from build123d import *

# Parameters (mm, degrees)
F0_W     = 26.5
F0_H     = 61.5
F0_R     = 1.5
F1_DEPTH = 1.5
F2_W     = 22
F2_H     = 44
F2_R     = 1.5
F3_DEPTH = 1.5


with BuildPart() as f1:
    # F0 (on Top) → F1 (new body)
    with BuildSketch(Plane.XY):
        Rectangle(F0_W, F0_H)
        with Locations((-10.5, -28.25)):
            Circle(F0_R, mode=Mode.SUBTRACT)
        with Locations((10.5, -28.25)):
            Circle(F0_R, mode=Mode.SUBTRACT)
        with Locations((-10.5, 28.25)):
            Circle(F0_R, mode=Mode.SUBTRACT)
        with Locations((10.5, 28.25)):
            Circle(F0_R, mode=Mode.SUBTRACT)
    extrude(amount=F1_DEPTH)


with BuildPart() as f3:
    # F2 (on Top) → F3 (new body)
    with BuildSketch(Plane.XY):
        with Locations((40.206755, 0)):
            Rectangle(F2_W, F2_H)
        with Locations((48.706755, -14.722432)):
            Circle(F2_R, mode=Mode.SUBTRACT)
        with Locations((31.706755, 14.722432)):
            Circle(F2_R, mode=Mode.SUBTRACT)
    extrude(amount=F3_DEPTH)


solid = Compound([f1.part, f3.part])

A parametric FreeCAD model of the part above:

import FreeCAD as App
import Part
import Sketcher
Q = App.Units.Quantity

doc = App.newDocument("Part")
body = doc.addObject("PartDesign::Body", "Body")

# Sketch on XY plane
sketch1 = body.newObject("Sketcher::SketchObject", "Sketch")
sketch1.AttachmentSupport = (doc.getObject("XY_Plane"), [""])
sketch1.MapMode = "FlatFace"
sketch1.addGeometry([
    Part.LineSegment(App.Vector(-13.25, 30.75, 0), App.Vector(-13.25, -30.75, 0)),  # 0
    Part.LineSegment(App.Vector(-13.25, -30.75, 0), App.Vector(13.25, -30.75, 0)),  # 1
    Part.LineSegment(App.Vector(13.25, -30.75, 0), App.Vector(13.25, 30.75, 0)),  # 2
    Part.LineSegment(App.Vector(13.25, 30.75, 0), App.Vector(-13.25, 30.75, 0)),  # 3
    Part.Circle(App.Vector(-10.5, -28.25, 0), App.Vector(0, 0, 1), 1.5),  # 4
    Part.Circle(App.Vector(10.5, -28.25, 0), App.Vector(0, 0, 1), 1.5),  # 5
    Part.Circle(App.Vector(-10.5, 28.25, 0), App.Vector(0, 0, 1), 1.5),  # 6
    Part.Circle(App.Vector(10.5, 28.25, 0), App.Vector(0, 0, 1), 1.5),  # 7
], False)
sketch1.addConstraint([
    Sketcher.Constraint("Coincident", 0, 2, 1, 1),
    Sketcher.Constraint("Coincident", 1, 2, 2, 1),
    Sketcher.Constraint("Coincident", 2, 2, 3, 1),
    Sketcher.Constraint("Coincident", 3, 2, 0, 1),
    Sketcher.Constraint("Vertical", 0),
    Sketcher.Constraint("Horizontal", 1),
    Sketcher.Constraint("Vertical", 2),
    Sketcher.Constraint("Horizontal", 3),
    Sketcher.Constraint("Equal", 4, 5),
    Sketcher.Constraint("Equal", 5, 6),
    Sketcher.Constraint("Equal", 6, 7),
    Sketcher.Constraint("Symmetric", 5, 3, 6, 3, -1, 1),
    Sketcher.Constraint("Symmetric", 4, 3, 7, 3, -1, 1),
    Sketcher.Constraint("Symmetric", 0, 2, 2, 2, -1, 1),
    Sketcher.Constraint("Symmetric", 4, 3, 5, 3, -2),
    Sketcher.Constraint("Diameter", 4, Q("3 mm")),
    Sketcher.Constraint("DistanceX", 1, 1, 1, 2, Q("26.5 mm")),
    Sketcher.Constraint("DistanceY", 0, 2, 0, 1, Q("61.5 mm")),
    Sketcher.Constraint("DistanceX", 4, 3, 5, 3, Q("21 mm")),
    Sketcher.Constraint("DistanceY", 0, 2, 6, 3, Q("59 mm")),
])
pad1 = body.newObject("PartDesign::Pad", "Pad")
pad1.Profile = sketch1
pad1.Length = 1.5
body2 = doc.addObject("PartDesign::Body", "Body001")

# Sketch on XY plane
sketch2 = body2.newObject("Sketcher::SketchObject", "Sketch001")
sketch2.AttachmentSupport = (doc.getObject("XY_Plane001"), [""])
sketch2.MapMode = "FlatFace"
sketch2.addGeometry([
    Part.LineSegment(App.Vector(29.206755, 22, 0), App.Vector(29.206755, -22, 0)),  # 0
    Part.LineSegment(App.Vector(29.206755, -22, 0), App.Vector(51.206755, -22, 0)),  # 1
    Part.LineSegment(App.Vector(51.206755, -22, 0), App.Vector(51.206755, 22, 0)),  # 2
    Part.LineSegment(App.Vector(51.206755, 22, 0), App.Vector(29.206755, 22, 0)),  # 3
    Part.Circle(App.Vector(48.706755, -14.722432, 0), App.Vector(0, 0, 1), 1.5),  # 4
    Part.Circle(App.Vector(31.706755, 14.722432, 0), App.Vector(0, 0, 1), 1.5),  # 5
], False)
sketch2.addConstraint([
    Sketcher.Constraint("Coincident", 0, 2, 1, 1),
    Sketcher.Constraint("Coincident", 1, 2, 2, 1),
    Sketcher.Constraint("Coincident", 2, 2, 3, 1),
    Sketcher.Constraint("Coincident", 3, 2, 0, 1),
    Sketcher.Constraint("Vertical", 0),
    Sketcher.Constraint("Horizontal", 1),
    Sketcher.Constraint("Vertical", 2),
    Sketcher.Constraint("Horizontal", 3),
    Sketcher.Constraint("Equal", 4, 5),
    Sketcher.Constraint("Diameter", 4, Q("3 mm")),
    Sketcher.Constraint("DistanceX", 1, 1, 1, 2, Q("22 mm")),
    Sketcher.Constraint("DistanceY", 0, 2, 0, 1, Q("44 mm")),
    Sketcher.Constraint("DistanceY", 0, 2, -1, 1, Q("22 mm")),
    Sketcher.Constraint("DistanceX", 5, 3, 4, 3, Q("17 mm")),
    Sketcher.Constraint("DistanceX", 0, 2, 4, 3, Q("19.5 mm")),
    Sketcher.Constraint("DistanceY", 0, 2, 4, 3, Q("7.277568 mm")),
    Sketcher.Constraint("DistanceY", 0, 2, 5, 3, Q("36.722432 mm")),
    Sketcher.Constraint("DistanceX", -1, 1, 4, 3, Q("48.706755 mm")),
])
pad2 = body2.newObject("PartDesign::Pad", "Pad001")
pad2.Profile = sketch2
pad2.Length = 1.5

doc.recompute()
